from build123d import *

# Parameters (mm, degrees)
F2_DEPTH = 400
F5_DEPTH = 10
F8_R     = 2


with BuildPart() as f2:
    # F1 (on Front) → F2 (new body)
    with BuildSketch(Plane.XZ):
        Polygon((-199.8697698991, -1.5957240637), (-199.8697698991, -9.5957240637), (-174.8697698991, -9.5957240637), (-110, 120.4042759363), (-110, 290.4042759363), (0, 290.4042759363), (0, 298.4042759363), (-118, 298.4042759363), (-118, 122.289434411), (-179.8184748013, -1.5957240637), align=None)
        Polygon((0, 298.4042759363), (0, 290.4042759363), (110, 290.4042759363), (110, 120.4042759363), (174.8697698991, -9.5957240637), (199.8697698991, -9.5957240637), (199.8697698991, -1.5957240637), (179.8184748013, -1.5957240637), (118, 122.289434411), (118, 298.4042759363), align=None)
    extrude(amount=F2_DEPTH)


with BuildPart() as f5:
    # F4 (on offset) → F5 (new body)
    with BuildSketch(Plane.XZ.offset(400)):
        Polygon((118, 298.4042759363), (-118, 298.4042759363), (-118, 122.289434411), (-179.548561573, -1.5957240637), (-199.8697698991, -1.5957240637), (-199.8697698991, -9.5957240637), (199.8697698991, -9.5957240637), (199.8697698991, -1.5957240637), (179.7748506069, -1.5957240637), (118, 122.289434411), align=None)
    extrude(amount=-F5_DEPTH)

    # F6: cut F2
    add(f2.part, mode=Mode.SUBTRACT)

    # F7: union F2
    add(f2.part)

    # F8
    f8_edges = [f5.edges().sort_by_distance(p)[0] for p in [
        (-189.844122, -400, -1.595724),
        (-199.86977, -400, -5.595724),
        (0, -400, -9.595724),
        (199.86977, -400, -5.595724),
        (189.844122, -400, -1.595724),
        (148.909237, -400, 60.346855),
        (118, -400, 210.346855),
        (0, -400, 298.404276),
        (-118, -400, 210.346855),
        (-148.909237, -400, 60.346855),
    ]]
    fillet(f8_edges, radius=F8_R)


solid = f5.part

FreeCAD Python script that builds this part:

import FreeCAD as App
import Part
import Sketcher
from FreeCAD import Vector
Q = App.Units.Quantity


def edges_at(feature, points):
    """Names of the edges that pass closest to the given points."""
    edges = feature.Shape.Edges
    near = lambda p: min(range(len(edges)), key=lambda i: edges[i].distToShape(Part.Vertex(*p))[0])
    return sorted({f"Edge{near(p) + 1}" for p in points})


def add_polygon(sketch, points):
    """Adds a closed chain of lines whose ends are joined by coincident constraints."""
    first, n = sketch.GeometryCount, len(points)
    for a, b in zip(points, points[1:] + points[:1]):
        sketch.addGeometry(Part.LineSegment(App.Vector(*a, 0), App.Vector(*b, 0)), False)
    for i in range(n):
        sketch.addConstraint(Sketcher.Constraint("Coincident", first + i, 2, first + (i + 1) % n, 1))

doc = App.newDocument("Part")
body = doc.addObject("PartDesign::Body", "Body")

sketch1 = body.newObject("Sketcher::SketchObject", "Sketch")
sketch1.AttachmentSupport = (doc.getObject("XZ_Plane"), [""])
sketch1.MapMode = "FlatFace"
add_polygon(sketch1, [(-200, -2), (-200, -10), (-175, -10), (-110, 120), (-110, 290), (110, 290), (110, 120), (175, -10), (200, -10), (200, -2), (180, -2), (118, 122), (118, 298), (-118, 298), (-118, 122), (-180, -2)])
sketch1.addConstraint([
    Sketcher.Constraint("Vertical", 0),
    Sketcher.Constraint("Horizontal", 1),
    Sketcher.Constraint("Vertical", 3),
    Sketcher.Constraint("Horizontal", 4),
    Sketcher.Constraint("Vertical", 5),
    Sketcher.Constraint("Horizontal", 7),
    Sketcher.Constraint("Vertical", 8),
    Sketcher.Constraint("Horizontal", 9),
    Sketcher.Constraint("Vertical", 11),
    Sketcher.Constraint("Horizontal", 12),
    Sketcher.Constraint("Vertical", 13),
    Sketcher.Constraint("Horizontal", 15),
    Sketcher.Constraint("Symmetric", 2, 2, 5, 2, -2),
    Sketcher.Constraint("Symmetric", 1, 2, 6, 2, -2),
    Sketcher.Constraint("Symmetric", 10, 2, 13, 2, -2),
    Sketcher.Constraint("Symmetric", 9, 2, 14, 2, -2),
    Sketcher.Constraint("Parallel", 6, 10),
    Sketcher.Constraint("Equal", 1, 7),
    Sketcher.Constraint("DistanceX", 1, 1, 1, 2, Q("25 mm")),
    Sketcher.Constraint("DistanceX", 4, 1, 4, 2, Q("220 mm")),
    Sketcher.Constraint("DistanceX", 12, 2, 12, 1, Q("236 mm")),
    Sketcher.Constraint("DistanceY", 0, 2, 0, 1, Q("8 mm")),
    Sketcher.Constraint("DistanceY", 3, 1, 3, 2, Q("170 mm")),
    Sketcher.Constraint("DistanceY", 1, 2, 2, 2, Q("130 mm")),
    Sketcher.Constraint("DistanceY", 4, 2, 11, 2, Q("8 mm")),
    Sketcher.Constraint("DistanceY", 11, 1, 11, 2, Q("176.114842 mm")),
    Sketcher.Constraint("Distance", 10, Q("138.452361 mm")),
    Sketcher.Constraint("DistanceY", 0, 2, -1, 1, Q("9.595724 mm")),
])
pad1 = body.newObject("PartDesign::Pad", "Pad")
pad1.Profile = sketch1
pad1.Length = 400
body2 = doc.addObject("PartDesign::Body", "Body001")

sketch2 = body2.newObject("Sketcher::SketchObject", "Sketch001")
sketch2.AttachmentSupport = (doc.getObject("XZ_Plane001"), [""])
sketch2.MapMode = "FlatFace"
sketch2.AttachmentOffset = App.Placement(Vector(0, 0, 400), App.Rotation())
add_polygon(sketch2, [(118, 298), (-118, 298), (-118, 122), (-180, -2), (-200, -2), (-200, -10), (200, -10), (200, -2), (180, -2), (118, 122)])
sketch2.addConstraint([
    Sketcher.Constraint("Horizontal", 0),
    Sketcher.Constraint("Vertical", 1),
    Sketcher.Constraint("Horizontal", 3),
    Sketcher.Constraint("Vertical", 4),
    Sketcher.Constraint("Horizontal", 5),
    Sketcher.Constraint("Vertical", 6),
    Sketcher.Constraint("Horizontal", 7),
    Sketcher.Constraint("Vertical", 9),
    Sketcher.Constraint("Symmetric", 3, 2, 6, 2, -2),
    Sketcher.Constraint("Symmetric", 1, 2, 8, 2, -2),
    Sketcher.Constraint("DistanceX", 0, 2, 0, 1, Q("236 mm")),
    Sketcher.Constraint("DistanceY", 4, 2, 4, 1, Q("8 mm")),
    Sketcher.Constraint("DistanceY", 2, 2, 0, 2, Q("300 mm")),
    Sketcher.Constraint("DistanceX", 3, 2, 3, 1, Q("20.321208 mm")),
    Sketcher.Constraint("DistanceX", 5, 1, 5, 2, Q("399.73954 mm")),
    Sketcher.Constraint("DistanceX", 7, 2, 7, 1, Q("20.094919 mm")),
    Sketcher.Constraint("DistanceY", 1, 2, 1, 1, Q("176.114842 mm")),
    Sketcher.Constraint("DistanceY", -1, 1, 0, 2, Q("298.404276 mm")),
])
pad2 = body2.newObject("PartDesign::Pad", "Pad001")
pad2.Profile = sketch2
pad2.Length = 10
pad2.Reversed = True
doc.recompute()

body3 = doc.addObject("PartDesign::Body", "Body002")
body3.BaseFeature = body
boolean = body2.newObject("PartDesign::Boolean", "Boolean")
boolean.Type = "Cut"
boolean.addObjects([body3])
doc.recompute()

boolean2 = body2.newObject("PartDesign::Boolean", "Boolean001")
boolean2.Type = "Fuse"
boolean2.addObjects([body])
doc.recompute()

fillet = body2.newObject("PartDesign::Fillet", "Fillet")
fillet.Base = (boolean2, edges_at(boolean2, [
    (-189.844, -400, -1.596),
    (-199.87, -400, -5.596),
    (0, -400, -9.596),
    (199.87, -400, -5.596),
    (189.844, -400, -1.596),
    (148.909, -400, 60.347),
    (118, -400, 210.347),
    (0, -400, 298.404),
    (-118, -400, 210.347),
    (-148.909, -400, 60.347),
]))
fillet.Radius = 2

doc.recompute()
